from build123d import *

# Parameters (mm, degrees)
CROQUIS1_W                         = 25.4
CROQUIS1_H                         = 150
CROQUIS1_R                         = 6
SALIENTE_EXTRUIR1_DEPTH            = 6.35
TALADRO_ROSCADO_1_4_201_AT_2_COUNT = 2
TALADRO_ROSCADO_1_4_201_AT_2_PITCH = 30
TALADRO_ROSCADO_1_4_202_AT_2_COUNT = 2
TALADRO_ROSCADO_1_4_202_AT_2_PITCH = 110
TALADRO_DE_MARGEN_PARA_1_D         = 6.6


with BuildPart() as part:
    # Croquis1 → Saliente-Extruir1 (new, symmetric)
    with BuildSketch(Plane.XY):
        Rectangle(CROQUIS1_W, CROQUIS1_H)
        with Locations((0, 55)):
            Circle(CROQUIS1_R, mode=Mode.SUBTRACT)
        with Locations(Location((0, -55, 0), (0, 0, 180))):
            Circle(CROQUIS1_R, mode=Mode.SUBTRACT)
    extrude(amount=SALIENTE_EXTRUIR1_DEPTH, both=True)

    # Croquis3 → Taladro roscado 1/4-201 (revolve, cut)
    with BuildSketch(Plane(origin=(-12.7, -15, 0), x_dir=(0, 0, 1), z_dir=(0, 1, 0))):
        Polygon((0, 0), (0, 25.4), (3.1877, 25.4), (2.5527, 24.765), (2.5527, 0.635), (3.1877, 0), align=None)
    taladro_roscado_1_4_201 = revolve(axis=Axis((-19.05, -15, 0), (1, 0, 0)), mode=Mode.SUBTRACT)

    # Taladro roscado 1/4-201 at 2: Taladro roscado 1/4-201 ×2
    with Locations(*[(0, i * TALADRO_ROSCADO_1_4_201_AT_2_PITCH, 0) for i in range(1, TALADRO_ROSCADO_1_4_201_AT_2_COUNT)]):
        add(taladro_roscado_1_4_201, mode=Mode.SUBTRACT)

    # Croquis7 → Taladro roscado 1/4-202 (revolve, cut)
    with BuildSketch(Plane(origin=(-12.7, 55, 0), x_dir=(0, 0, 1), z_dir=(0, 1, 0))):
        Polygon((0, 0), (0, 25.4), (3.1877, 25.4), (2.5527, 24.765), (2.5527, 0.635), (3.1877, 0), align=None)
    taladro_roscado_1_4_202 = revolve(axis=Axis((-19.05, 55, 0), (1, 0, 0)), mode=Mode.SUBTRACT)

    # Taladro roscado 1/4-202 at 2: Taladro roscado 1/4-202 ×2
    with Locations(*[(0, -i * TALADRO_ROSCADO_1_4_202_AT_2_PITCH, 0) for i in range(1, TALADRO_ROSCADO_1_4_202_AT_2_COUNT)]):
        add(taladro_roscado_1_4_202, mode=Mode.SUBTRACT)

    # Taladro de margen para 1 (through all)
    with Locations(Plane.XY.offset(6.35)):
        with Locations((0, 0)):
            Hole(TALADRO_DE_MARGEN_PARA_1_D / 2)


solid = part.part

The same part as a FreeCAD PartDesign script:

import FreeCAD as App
import Part
import Sketcher

V = App.Vector

doc = App.newDocument("Part")
body = doc.addObject("PartDesign::Body", "Body")

# Sketch on XY plane
sketch1 = doc.addObject("Sketcher::SketchObject", "Sketch")
body.addObject(sketch1)
sketch1.AttachmentSupport = (doc.XY_Plane, [""])
sketch1.MapMode = "FlatFace"
sketch1.addGeometry([
    Part.LineSegment(V(-13, 75, 0), V(-13, -75, 0)),  # 0
    Part.LineSegment(V(-13, -75, 0), V(13, -75, 0)),  # 1
    Part.LineSegment(V(13, -75, 0), V(13, 75, 0)),  # 2
    Part.LineSegment(V(13, 75, 0), V(-13, 75, 0)),  # 3
    Part.Circle(V(0, -55, 0), V(0, 0, 1), 6),  # 4
    Part.Circle(V(0, 55, 0), V(0, 0, 1), 6),  # 5
], False)
sketch1.addConstraint([
    Sketcher.Constraint("Coincident", 0, 2, 1, 1),
    Sketcher.Constraint("Coincident", 1, 2, 2, 1),
    Sketcher.Constraint("Coincident", 2, 2, 3, 1),
    Sketcher.Constraint("Coincident", 3, 2, 0, 1),
    Sketcher.Constraint("Vertical", 0),
    Sketcher.Constraint("Horizontal", 1),
    Sketcher.Constraint("Vertical", 2),
    Sketcher.Constraint("Horizontal", 3),
    Sketcher.Constraint("Equal", 4, 5),
    Sketcher.Constraint("Symmetric", 4, 3, 5, 3, -1, 1),
    Sketcher.Constraint("Symmetric", 0, 2, 2, 2, -1, 1),
    Sketcher.Constraint("PointOnObject", 4, 3, -2),
    Sketcher.Constraint("Diameter", 4, 12.0),
    Sketcher.Constraint("DistanceY", 0, 2, 0, 1, 150.0),
    Sketcher.Constraint("DistanceX", 1, 1, 1, 2, 25.4),
    Sketcher.Constraint("DistanceY", 4, 3, -1, 1, 55.0),
])
pad1 = doc.addObject("PartDesign::Pad", "Pad")
body.addObject(pad1)
pad1.Profile = sketch1
pad1.Length = 12.7
pad1.Midplane = True

# Sketch on XZ plane
sketch2 = doc.addObject("Sketcher::SketchObject", "Sketch001")
body.addObject(sketch2)
sketch2.AttachmentSupport = (doc.XZ_Plane, [""])
sketch2.MapMode = "FlatFace"
sketch2.AttachmentOffset = App.Placement(V(0, 0, 15), App.Rotation())
sketch2.addGeometry([
    Part.LineSegment(V(12.7, 0, 0), V(-12.7, 0, 0)),  # 0
    Part.LineSegment(V(-12.7, 0, 0), V(-12.7, 3.2, 0)),  # 1
    Part.LineSegment(V(-12.7, 3.2, 0), V(-12.1, 2.6, 0)),  # 2
    Part.LineSegment(V(-12.1, 2.6, 0), V(12.1, 2.6, 0)),  # 3
    Part.LineSegment(V(12.1, 2.6, 0), V(12.7, 3.2, 0)),  # 4
    Part.LineSegment(V(12.7, 3.2, 0), V(12.7, 0, 0)),  # 5
], False)
sketch2.addConstraint([
    Sketcher.Constraint("Coincident", 0, 2, 1, 1),
    Sketcher.Constraint("Coincident", 1, 2, 2, 1),
    Sketcher.Constraint("Coincident", 2, 2, 3, 1),
    Sketcher.Constraint("Coincident", 3, 2, 4, 1),
    Sketcher.Constraint("Coincident", 4, 2, 5, 1),
    Sketcher.Constraint("Coincident", 5, 2, 0, 1),
    Sketcher.Constraint("Horizontal", 0),
    Sketcher.Constraint("Vertical", 1),
    Sketcher.Constraint("Horizontal", 3),
    Sketcher.Constraint("Vertical", 5),
    Sketcher.Constraint("Symmetric", 0, 2, 5, 2, -1, 1),
    Sketcher.Constraint("Perpendicular", 2, 4),
    Sketcher.Constraint("Horizontal", 1, 2, 4, 2),
    Sketcher.Constraint("Equal", 2, 4),
    Sketcher.Constraint("DistanceX", 0, 2, 0, 1, 25.4),
    Sketcher.Constraint("DistanceX", 3, 1, 3, 2, 24.13),
    Sketcher.Constraint("DistanceY", 1, 1, 1, 2, 3.1877),
])
groove = doc.addObject("PartDesign::Groove", "Groove")
body.addObject(groove)
groove.Profile = sketch2
groove.ReferenceAxis = (sketch2, ["H_Axis"])
groove.Angle = 360
doc.recompute()

linearpattern = doc.addObject("PartDesign::LinearPattern", "LinearPattern")
body.addObject(linearpattern)
linearpattern.Originals = [groove]
linearpattern.Direction = (doc.Y_Axis, [""])
linearpattern.Mode = "offset"
linearpattern.Offset = 30
linearpattern.Occurrences = 2
body.Tip = linearpattern

# Sketch on XZ plane
sketch3 = doc.addObject("Sketcher::SketchObject", "Sketch002")
body.addObject(sketch3)
sketch3.AttachmentSupport = (doc.XZ_Plane, [""])
sketch3.MapMode = "FlatFace"
sketch3.AttachmentOffset = App.Placement(V(0, 0, -55), App.Rotation())
sketch3.addGeometry([
    Part.LineSegment(V(12.7, 0, 0), V(-12.7, 0, 0)),  # 0
    Part.LineSegment(V(-12.7, 0, 0), V(-12.7, 3.2, 0)),  # 1
    Part.LineSegment(V(-12.7, 3.2, 0), V(-12.1, 2.6, 0)),  # 2
    Part.LineSegment(V(-12.1, 2.6, 0), V(12.1, 2.6, 0)),  # 3
    Part.LineSegment(V(12.1, 2.6, 0), V(12.7, 3.2, 0)),  # 4
    Part.LineSegment(V(12.7, 3.2, 0), V(12.7, 0, 0)),  # 5
], False)
sketch3.addConstraint([
    Sketcher.Constraint("Coincident", 0, 2, 1, 1),
    Sketcher.Constraint("Coincident", 1, 2, 2, 1),
    Sketcher.Constraint("Coincident", 2, 2, 3, 1),
    Sketcher.Constraint("Coincident", 3, 2, 4, 1),
    Sketcher.Constraint("Coincident", 4, 2, 5, 1),
    Sketcher.Constraint("Coincident", 5, 2, 0, 1),
    Sketcher.Constraint("Horizontal", 0),
    Sketcher.Constraint("Vertical", 1),
    Sketcher.Constraint("Horizontal", 3),
    Sketcher.Constraint("Vertical", 5),
    Sketcher.Constraint("Symmetric", 0, 2, 5, 2, -1, 1),
    Sketcher.Constraint("Perpendicular", 2, 4),
    Sketcher.Constraint("Horizontal", 1, 2, 4, 2),
    Sketcher.Constraint("Equal", 2, 4),
    Sketcher.Constraint("DistanceX", 0, 2, 0, 1, 25.4),
    Sketcher.Constraint("DistanceX", 3, 1, 3, 2, 24.13),
    Sketcher.Constraint("DistanceY", 1, 1, 1, 2, 3.1877),
])
groove2 = doc.addObject("PartDesign::Groove", "Groove001")
body.addObject(groove2)
groove2.Profile = sketch3
groove2.ReferenceAxis = (sketch3, ["H_Axis"])
groove2.Angle = 360
doc.recompute()

linearpattern2 = doc.addObject("PartDesign::LinearPattern", "LinearPattern001")
body.addObject(linearpattern2)
linearpattern2.Originals = [groove2]
linearpattern2.Direction = (doc.Y_Axis, [""])
linearpattern2.Mode = "offset"
linearpattern2.Offset = 110
linearpattern2.Occurrences = 2
linearpattern2.Reversed = True
body.Tip = linearpattern2

# Sketch on XY plane
sketch4 = doc.addObject("Sketcher::SketchObject", "Sketch003")
body.addObject(sketch4)
sketch4.AttachmentSupport = (doc.XY_Plane, [""])
sketch4.MapMode = "FlatFace"
sketch4.AttachmentOffset = App.Placement(V(0, 0, 6.35), App.Rotation())
sketch4.addGeometry(Part.Circle(V(0, 0, 0), V(0, 0, 1), 3.3), False)
sketch4.addConstraint([
    Sketcher.Constraint("Coincident", 0, 3, -1, 1),
    Sketcher.Constraint("Diameter", 0, 6.6),
])
doc.recompute()
hole = doc.addObject("PartDesign::Hole", "Hole")
body.addObject(hole)
hole.Profile = sketch4
hole.ThreadType = "None"
hole.Diameter = 6.6
hole.DepthType = "ThroughAll"

doc.recompute()
